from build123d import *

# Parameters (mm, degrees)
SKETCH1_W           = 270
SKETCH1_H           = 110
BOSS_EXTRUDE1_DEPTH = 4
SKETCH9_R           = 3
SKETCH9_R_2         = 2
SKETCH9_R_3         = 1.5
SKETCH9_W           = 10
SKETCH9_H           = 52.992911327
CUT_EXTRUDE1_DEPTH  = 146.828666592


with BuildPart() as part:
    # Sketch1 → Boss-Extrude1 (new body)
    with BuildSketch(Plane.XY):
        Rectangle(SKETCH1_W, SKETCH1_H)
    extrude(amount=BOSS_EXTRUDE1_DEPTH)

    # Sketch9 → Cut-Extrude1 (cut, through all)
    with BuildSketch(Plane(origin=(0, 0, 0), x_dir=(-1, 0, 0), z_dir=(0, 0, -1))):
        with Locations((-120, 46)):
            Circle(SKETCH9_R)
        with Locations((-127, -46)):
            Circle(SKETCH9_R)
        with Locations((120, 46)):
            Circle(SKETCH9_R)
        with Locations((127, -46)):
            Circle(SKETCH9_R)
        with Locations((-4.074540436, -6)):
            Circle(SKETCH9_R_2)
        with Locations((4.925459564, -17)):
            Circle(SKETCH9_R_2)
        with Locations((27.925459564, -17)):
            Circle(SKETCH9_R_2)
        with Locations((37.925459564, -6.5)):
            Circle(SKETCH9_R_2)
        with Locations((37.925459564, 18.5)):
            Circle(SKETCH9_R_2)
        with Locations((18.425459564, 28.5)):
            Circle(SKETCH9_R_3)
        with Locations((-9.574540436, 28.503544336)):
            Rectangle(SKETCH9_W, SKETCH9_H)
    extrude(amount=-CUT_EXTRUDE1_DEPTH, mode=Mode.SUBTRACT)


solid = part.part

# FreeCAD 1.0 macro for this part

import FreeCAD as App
import Part
import Sketcher

doc = App.newDocument("Part")
body = doc.addObject("PartDesign::Body", "Body")

# Sketch on XY plane
sketch1 = body.newObject("Sketcher::SketchObject", "Sketch")
sketch1.AttachmentSupport = (doc.getObject("XY_Plane"), [""])
sketch1.MapMode = "FlatFace"
sketch1.addGeometry([
    Part.LineSegment(App.Vector(-135, 55, 0), App.Vector(-135, -55, 0)),
    Part.LineSegment(App.Vector(-135, -55, 0), App.Vector(135, -55, 0)),
    Part.LineSegment(App.Vector(135, -55, 0), App.Vector(135, 55, 0)),
    Part.LineSegment(App.Vector(135, 55, 0), App.Vector(-135, 55, 0)),
], False)
sketch1.addConstraint([
    Sketcher.Constraint("Coincident", 0, 2, 1, 1),
    Sketcher.Constraint("Coincident", 1, 2, 2, 1),
    Sketcher.Constraint("Coincident", 2, 2, 3, 1),
    Sketcher.Constraint("Coincident", 3, 2, 0, 1),
    Sketcher.Constraint("Vertical", 0),
    Sketcher.Constraint("Horizontal", 1),
    Sketcher.Constraint("Vertical", 2),
    Sketcher.Constraint("Horizontal", 3),
    Sketcher.Constraint("Symmetric", 0, 2, 2, 2, -1, 1),
    Sketcher.Constraint("DistanceX", 1, 1, 1, 2, 270.0),
    Sketcher.Constraint("DistanceY", 0, 2, 0, 1, 110.0),
])
pad1 = body.newObject("PartDesign::Pad", "Pad")
pad1.Profile = sketch1
pad1.Length = 4

# Sketch on XY plane
sketch2 = body.newObject("Sketcher::SketchObject", "Sketch001")
sketch2.AttachmentSupport = (doc.getObject("XY_Plane"), [""])
sketch2.MapMode = "FlatFace"
sketch2.addGeometry([
    Part.Circle(App.Vector(120, 46, 0), App.Vector(0, 0, 1), 3),  # 0
    Part.Circle(App.Vector(127, -46, 0), App.Vector(0, 0, 1), 3),  # 1
    Part.Circle(App.Vector(-120, 46, 0), App.Vector(0, 0, 1), 3),  # 2
    Part.Circle(App.Vector(-127, -46, 0), App.Vector(0, 0, 1), 3),  # 3
    Part.Circle(App.Vector(4.1, -6, 0), App.Vector(0, 0, 1), 2),  # 4
    Part.Circle(App.Vector(-4.9, -17, 0), App.Vector(0, 0, 1), 2),  # 5
    Part.Circle(App.Vector(-27.9, -17, 0), App.Vector(0, 0, 1), 2),  # 6
    Part.Circle(App.Vector(-37.9, -6.5, 0), App.Vector(0, 0, 1), 2),  # 7
    Part.Circle(App.Vector(-37.9, 18.5, 0), App.Vector(0, 0, 1), 2),  # 8
    Part.Circle(App.Vector(-18.4, 28.5, 0), App.Vector(0, 0, 1), 1.5),  # 9
    Part.LineSegment(App.Vector(14.6, 55, 0), App.Vector(14.6, 2, 0)),  # 10
    Part.LineSegment(App.Vector(14.6, 2, 0), App.Vector(4.6, 2, 0)),  # 11
    Part.LineSegment(App.Vector(4.6, 2, 0), App.Vector(4.6, 55, 0)),  # 12
    Part.LineSegment(App.Vector(4.6, 55, 0), App.Vector(14.6, 55, 0)),  # 13
], False)
sketch2.addConstraint([
    Sketcher.Constraint("Coincident", 10, 2, 11, 1),
    Sketcher.Constraint("Coincident", 11, 2, 12, 1),
    Sketcher.Constraint("Coincident", 12, 2, 13, 1),
    Sketcher.Constraint("Coincident", 13, 2, 10, 1),
    Sketcher.Constraint("Vertical", 10),
    Sketcher.Constraint("Horizontal", 11),
    Sketcher.Constraint("Vertical", 12),
    Sketcher.Constraint("Horizontal", 13),
    Sketcher.Constraint("Equal", 0, 1),
    Sketcher.Constraint("Equal", 1, 2),
    Sketcher.Constraint("Equal", 2, 3),
    Sketcher.Constraint("Equal", 4, 5),
    Sketcher.Constraint("Equal", 5, 6),
    Sketcher.Constraint("Equal", 6, 7),
    Sketcher.Constraint("Equal", 7, 8),
    Sketcher.Constraint("Symmetric", 0, 3, 2, 3, -2),
    Sketcher.Constraint("Symmetric", 1, 3, 3, 3, -2),
    Sketcher.Constraint("Horizontal", 5, 3, 6, 3),
    Sketcher.Constraint("Vertical", 7, 3, 8, 3),
    Sketcher.Constraint("Diameter", 0, 6.0),
    Sketcher.Constraint("Diameter", 4, 4.0),
    Sketcher.Constraint("Diameter", 9, 3.0),
    Sketcher.Constraint("DistanceX", 11, 2, 11, 1, 10.0),
    Sketcher.Constraint("DistanceX", -1, 1, 0, 3, 120.0),
    Sketcher.Constraint("DistanceY", -1, 1, 0, 3, 46.0),
    Sketcher.Constraint("DistanceX", -1, 1, 1, 3, 127.0),
    Sketcher.Constraint("DistanceY", 1, 3, -1, 1, 46.0),
    Sketcher.Constraint("DistanceY", 4, 3, -1, 1, 6.0),
    Sketcher.Constraint("DistanceY", 5, 3, -1, 1, 17.0),
    Sketcher.Constraint("DistanceY", -1, 1, 12, 2, 55.0),
    Sketcher.Constraint("DistanceX", 5, 3, 4, 3, 9.0),
    Sketcher.Constraint("DistanceX", 6, 3, 5, 3, 23.0),
    Sketcher.Constraint("DistanceX", 7, 3, 6, 3, 10.0),
    Sketcher.Constraint("DistanceY", 7, 3, 8, 3, 25.0),
    Sketcher.Constraint("DistanceY", 8, 3, 9, 3, 10.0),
    Sketcher.Constraint("DistanceX", 9, 3, 10, 2, 33.0),
    Sketcher.Constraint("DistanceY", 7, 3, -1, 1, 6.5),
    Sketcher.Constraint("DistanceX", 8, 3, 9, 3, 19.5),
    Sketcher.Constraint("DistanceY", 10, 2, 10, 1, 52.992911),
    Sketcher.Constraint("DistanceX", -1, 1, 4, 3, 4.07454),
])
pocket1 = body.newObject("PartDesign::Pocket", "Pocket")
pocket1.Profile = sketch2
pocket1.Type = "ThroughAll"
pocket1.Reversed = True

doc.recompute()
